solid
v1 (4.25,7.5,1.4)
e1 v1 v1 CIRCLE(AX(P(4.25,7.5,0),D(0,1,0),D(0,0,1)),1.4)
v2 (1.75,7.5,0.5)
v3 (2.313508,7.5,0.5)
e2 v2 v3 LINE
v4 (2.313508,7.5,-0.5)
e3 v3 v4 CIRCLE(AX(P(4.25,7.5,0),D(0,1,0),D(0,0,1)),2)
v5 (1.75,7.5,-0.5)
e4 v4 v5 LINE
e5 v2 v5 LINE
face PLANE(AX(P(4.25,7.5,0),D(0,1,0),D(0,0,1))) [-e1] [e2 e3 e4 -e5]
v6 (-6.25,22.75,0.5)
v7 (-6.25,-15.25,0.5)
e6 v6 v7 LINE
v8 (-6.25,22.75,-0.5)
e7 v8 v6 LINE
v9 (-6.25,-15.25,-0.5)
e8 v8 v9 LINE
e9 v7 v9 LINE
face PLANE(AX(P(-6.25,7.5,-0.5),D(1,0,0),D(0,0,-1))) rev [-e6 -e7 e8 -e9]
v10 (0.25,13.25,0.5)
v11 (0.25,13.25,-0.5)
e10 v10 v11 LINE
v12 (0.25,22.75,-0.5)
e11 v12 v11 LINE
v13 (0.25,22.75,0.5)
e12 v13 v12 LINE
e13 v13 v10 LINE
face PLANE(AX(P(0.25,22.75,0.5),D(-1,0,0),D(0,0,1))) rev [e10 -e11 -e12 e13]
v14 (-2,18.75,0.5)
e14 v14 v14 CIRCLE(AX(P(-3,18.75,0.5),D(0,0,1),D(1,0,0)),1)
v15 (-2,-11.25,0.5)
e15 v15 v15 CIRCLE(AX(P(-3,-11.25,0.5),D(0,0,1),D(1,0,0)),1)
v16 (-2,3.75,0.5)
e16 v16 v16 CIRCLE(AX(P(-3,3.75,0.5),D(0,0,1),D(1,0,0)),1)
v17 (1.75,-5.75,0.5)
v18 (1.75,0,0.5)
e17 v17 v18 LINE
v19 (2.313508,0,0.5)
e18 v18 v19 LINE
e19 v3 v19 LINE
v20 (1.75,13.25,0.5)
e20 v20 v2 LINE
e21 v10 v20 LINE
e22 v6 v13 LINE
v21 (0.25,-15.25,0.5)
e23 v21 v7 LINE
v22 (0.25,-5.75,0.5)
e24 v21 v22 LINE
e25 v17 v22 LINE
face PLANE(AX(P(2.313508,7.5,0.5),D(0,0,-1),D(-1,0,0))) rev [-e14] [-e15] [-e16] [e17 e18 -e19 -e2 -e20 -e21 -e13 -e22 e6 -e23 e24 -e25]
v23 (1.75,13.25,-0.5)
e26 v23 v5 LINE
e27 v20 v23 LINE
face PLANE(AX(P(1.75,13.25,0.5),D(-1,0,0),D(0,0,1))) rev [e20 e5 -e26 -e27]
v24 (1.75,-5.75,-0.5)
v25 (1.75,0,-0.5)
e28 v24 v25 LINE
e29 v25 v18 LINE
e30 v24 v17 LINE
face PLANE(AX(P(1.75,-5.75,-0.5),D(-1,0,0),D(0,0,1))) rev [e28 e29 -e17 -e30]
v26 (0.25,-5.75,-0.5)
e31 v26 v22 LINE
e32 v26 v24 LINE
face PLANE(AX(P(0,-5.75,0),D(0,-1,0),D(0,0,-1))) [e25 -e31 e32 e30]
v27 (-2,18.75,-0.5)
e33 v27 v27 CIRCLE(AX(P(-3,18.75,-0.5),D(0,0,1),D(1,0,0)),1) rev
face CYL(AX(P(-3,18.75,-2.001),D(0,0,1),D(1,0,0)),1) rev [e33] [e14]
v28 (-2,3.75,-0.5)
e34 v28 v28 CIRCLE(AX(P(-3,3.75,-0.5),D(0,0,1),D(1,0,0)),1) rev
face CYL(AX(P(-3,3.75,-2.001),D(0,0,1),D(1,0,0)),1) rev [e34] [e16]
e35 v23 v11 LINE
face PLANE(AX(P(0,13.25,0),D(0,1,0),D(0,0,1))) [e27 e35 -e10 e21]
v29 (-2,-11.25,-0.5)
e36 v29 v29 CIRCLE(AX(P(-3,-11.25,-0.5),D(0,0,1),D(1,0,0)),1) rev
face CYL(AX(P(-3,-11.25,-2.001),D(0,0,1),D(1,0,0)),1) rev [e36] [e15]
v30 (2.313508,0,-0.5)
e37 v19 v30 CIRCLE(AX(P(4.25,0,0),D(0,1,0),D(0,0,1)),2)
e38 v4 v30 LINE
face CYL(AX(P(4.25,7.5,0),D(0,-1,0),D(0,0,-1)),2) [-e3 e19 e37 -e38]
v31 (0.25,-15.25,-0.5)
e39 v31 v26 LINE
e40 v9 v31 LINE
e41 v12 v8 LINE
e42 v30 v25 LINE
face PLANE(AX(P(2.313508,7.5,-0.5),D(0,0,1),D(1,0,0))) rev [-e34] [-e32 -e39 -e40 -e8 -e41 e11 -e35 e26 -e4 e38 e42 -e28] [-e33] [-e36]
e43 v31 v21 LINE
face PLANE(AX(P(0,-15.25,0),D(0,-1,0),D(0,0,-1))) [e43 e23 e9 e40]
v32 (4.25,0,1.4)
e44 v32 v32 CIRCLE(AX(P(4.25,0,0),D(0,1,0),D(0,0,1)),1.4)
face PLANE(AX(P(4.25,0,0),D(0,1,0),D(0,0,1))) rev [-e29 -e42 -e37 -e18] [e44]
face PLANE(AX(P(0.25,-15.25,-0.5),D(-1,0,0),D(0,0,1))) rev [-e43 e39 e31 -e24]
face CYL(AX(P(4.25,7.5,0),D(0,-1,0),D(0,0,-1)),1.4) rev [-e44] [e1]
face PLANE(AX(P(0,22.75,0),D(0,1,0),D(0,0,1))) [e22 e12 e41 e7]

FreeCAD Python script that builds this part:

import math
import FreeCAD as App
import Part
import Sketcher
from FreeCAD import Vector

doc = App.newDocument("Part")
params = doc.addObject("Spreadsheet::Sheet", "Params")
for row, (alias, value) in enumerate([
    ("sketch1_radius", "2 mm"),
    ("sketch1_diameter", "2.8 mm"),
    ("sketch1_height", "1 mm"),
    ("pad1_length", "7.5 mm"),
    ("sketch2_width", "8 mm"),
    ("sketch2_height", "1 mm"),
    ("pad2_length", "5.75 mm"),
    ("sketch3_width", "8 mm"),
    ("sketch3_height", "1 mm"),
    ("pad3_length", "5.75 mm"),
    ("sketch4_height", "1 mm"),
    ("sketch4_width", "6.5 mm"),
    ("pad4_length", "9.5 mm"),
    ("sketch5_height", "1 mm"),
    ("sketch5_width", "6.5 mm"),
    ("pad5_length", "9.5 mm"),
    ("sketch6_diameter", "2 mm"),
    ("sketch7_diameter", "2 mm"),
    ("sketch8_diameter", "2 mm"),
], start=1):
    params.set(f"A{row}", alias)
    params.set(f"B{row}", "=" + value)
    params.setAlias(f"B{row}", alias)

body = doc.addObject("PartDesign::Body", "Body")

sketch1 = doc.addObject("Sketcher::SketchObject", "Sketch")
body.addObject(sketch1)
sketch1.AttachmentSupport = (doc.XZ_Plane, [""])
sketch1.MapMode = "FlatFace"
sketch1.addGeometry(Part.LineSegment(Vector(2.3, -0.5, 0), Vector(-6.2, -0.5, 0)), False)
sketch1.addGeometry(Part.LineSegment(Vector(-6.2, -0.5, 0), Vector(-6.2, 0.5, 0)), False)
sketch1.addGeometry(Part.LineSegment(Vector(-6.2, 0.5, 0), Vector(2.3, 0.5, 0)), False)
sketch1.addGeometry(Part.ArcOfCircle(Part.Circle(Vector(4.2, 0, 0), Vector(0, 0, 1), 2), math.radians(-166), math.radians(166)), False)
sketch1.addGeometry(Part.Circle(Vector(4.2, 0, 0), Vector(0, 0, 1), 1.4), False)
sketch1.addConstraint(Sketcher.Constraint("Coincident", 0, 2, 1, 1))
sketch1.addConstraint(Sketcher.Constraint("Coincident", 1, 2, 2, 1))
sketch1.addConstraint(Sketcher.Constraint("Coincident", 2, 2, 3, 2))
sketch1.addConstraint(Sketcher.Constraint("Coincident", 3, 1, 0, 1))
sketch1.addConstraint(Sketcher.Constraint("Horizontal", 0))
sketch1.addConstraint(Sketcher.Constraint("Vertical", 1))
sketch1.addConstraint(Sketcher.Constraint("Horizontal", 2))
sketch1.addConstraint(Sketcher.Constraint("Coincident", 4, 3, 3, 3))
sketch1.addConstraint(Sketcher.Constraint("Symmetric", 2, 2, 3, 1, -1))
sketch1.addConstraint(Sketcher.Constraint("Radius", 3, 2.0))
sketch1.addConstraint(Sketcher.Constraint("Diameter", 4, 2.8))
sketch1.addConstraint(Sketcher.Constraint("DistanceY", 1, 1, 1, 2, 1.0))
sketch1.addConstraint(Sketcher.Constraint("DistanceX", 0, 2, 3, 3, 10.5))
sketch1.addConstraint(Sketcher.Constraint("DistanceX", -1, 1, 3, 3, 4.25))
sketch1.setExpression("Constraints[9]", "Params.sketch1_radius")
sketch1.setExpression("Constraints[10]", "Params.sketch1_diameter")
sketch1.setExpression("Constraints[11]", "Params.sketch1_height")
pad1 = doc.addObject("PartDesign::Pad", "Pad")
body.addObject(pad1)
pad1.Profile = sketch1
pad1.setExpression("Length", "Params.pad1_length")
pad1.Reversed = True

sketch2 = doc.addObject("Sketcher::SketchObject", "Sketch001")
body.addObject(sketch2)
sketch2.AttachmentSupport = (doc.XZ_Plane, [""])
sketch2.MapMode = "FlatFace"
sketch2.AttachmentOffset = App.Placement(Vector(0, 0, -7.5), App.Rotation())
sketch2.addGeometry(Part.LineSegment(Vector(-6.2, -0.5, 0), Vector(-6.2, 0.5, 0)), False)
sketch2.addGeometry(Part.LineSegment(Vector(-6.2, 0.5, 0), Vector(1.8, 0.5, 0)), False)
sketch2.addGeometry(Part.LineSegment(Vector(1.8, 0.5, 0), Vector(1.8, -0.5, 0)), False)
sketch2.addGeometry(Part.LineSegment(Vector(1.8, -0.5, 0), Vector(-6.2, -0.5, 0)), False)
sketch2.addConstraint(Sketcher.Constraint("Coincident", 0, 2, 1, 1))
sketch2.addConstraint(Sketcher.Constraint("Coincident", 1, 2, 2, 1))
sketch2.addConstraint(Sketcher.Constraint("Coincident", 2, 2, 3, 1))
sketch2.addConstraint(Sketcher.Constraint("Coincident", 3, 2, 0, 1))
sketch2.addConstraint(Sketcher.Constraint("Vertical", 0))
sketch2.addConstraint(Sketcher.Constraint("Horizontal", 1))
sketch2.addConstraint(Sketcher.Constraint("Vertical", 2))
sketch2.addConstraint(Sketcher.Constraint("Horizontal", 3))
sketch2.addConstraint(Sketcher.Constraint("DistanceX", 1, 1, 1, 2, 8.0))
sketch2.addConstraint(Sketcher.Constraint("DistanceY", 0, 1, 0, 2, 1.0))
sketch2.addConstraint(Sketcher.Constraint("DistanceY", -1, 1, 0, 2, 0.5))
sketch2.addConstraint(Sketcher.Constraint("DistanceX", 0, 2, -1, 1, 6.25))
sketch2.setExpression("Constraints[8]", "Params.sketch2_width")
sketch2.setExpression("Constraints[9]", "Params.sketch2_height")
pad2 = doc.addObject("PartDesign::Pad", "Pad001")
body.addObject(pad2)
pad2.Profile = sketch2
pad2.setExpression("Length", "Params.pad2_length")
pad2.Reversed = True

sketch3 = doc.addObject("Sketcher::SketchObject", "Sketch002")
body.addObject(sketch3)
sketch3.AttachmentSupport = (doc.XZ_Plane, [""])
sketch3.MapMode = "FlatFace"
sketch3.addGeometry(Part.LineSegment(Vector(-6.2, 0.5, 0), Vector(-6.2, -0.5, 0)), False)
sketch3.addGeometry(Part.LineSegment(Vector(-6.2, -0.5, 0), Vector(1.8, -0.5, 0)), False)
sketch3.addGeometry(Part.LineSegment(Vector(1.8, -0.5, 0), Vector(1.8, 0.5, 0)), False)
sketch3.addGeometry(Part.LineSegment(Vector(1.8, 0.5, 0), Vector(-6.2, 0.5, 0)), False)
sketch3.addConstraint(Sketcher.Constraint("Coincident", 0, 2, 1, 1))
sketch3.addConstraint(Sketcher.Constraint("Coincident", 1, 2, 2, 1))
sketch3.addConstraint(Sketcher.Constraint("Coincident", 2, 2, 3, 1))
sketch3.addConstraint(Sketcher.Constraint("Coincident", 3, 2, 0, 1))
sketch3.addConstraint(Sketcher.Constraint("Vertical", 0))
sketch3.addConstraint(Sketcher.Constraint("Horizontal", 1))
sketch3.addConstraint(Sketcher.Constraint("Vertical", 2))
sketch3.addConstraint(Sketcher.Constraint("Horizontal", 3))
sketch3.addConstraint(Sketcher.Constraint("DistanceX", 1, 1, 1, 2, 8.0))
sketch3.addConstraint(Sketcher.Constraint("DistanceY", 0, 2, 0, 1, 1.0))
sketch3.addConstraint(Sketcher.Constraint("DistanceY", 0, 2, -1, 1, 0.5))
sketch3.addConstraint(Sketcher.Constraint("DistanceX", 0, 2, -1, 1, 6.25))
sketch3.setExpression("Constraints[8]", "Params.sketch3_width")
sketch3.setExpression("Constraints[9]", "Params.sketch3_height")
pad3 = doc.addObject("PartDesign::Pad", "Pad002")
body.addObject(pad3)
pad3.Profile = sketch3
pad3.setExpression("Length", "Params.pad3_length")

sketch4 = doc.addObject("Sketcher::SketchObject", "Sketch003")
body.addObject(sketch4)
sketch4.AttachmentSupport = (doc.XZ_Plane, [""])
sketch4.MapMode = "FlatFace"
sketch4.AttachmentOffset = App.Placement(Vector(0, 0, 5.75), App.Rotation())
sketch4.addGeometry(Part.LineSegment(Vector(-6.2, 0.5, 0), Vector(-6.2, -0.5, 0)), False)
sketch4.addGeometry(Part.LineSegment(Vector(-6.2, -0.5, 0), Vector(0.2, -0.5, 0)), False)
sketch4.addGeometry(Part.LineSegment(Vector(0.2, -0.5, 0), Vector(0.2, 0.5, 0)), False)
sketch4.addGeometry(Part.LineSegment(Vector(0.2, 0.5, 0), Vector(-6.2, 0.5, 0)), False)
sketch4.addConstraint(Sketcher.Constraint("Coincident", 0, 2, 1, 1))
sketch4.addConstraint(Sketcher.Constraint("Coincident", 1, 2, 2, 1))
sketch4.addConstraint(Sketcher.Constraint("Coincident", 2, 2, 3, 1))
sketch4.addConstraint(Sketcher.Constraint("Coincident", 3, 2, 0, 1))
sketch4.addConstraint(Sketcher.Constraint("Vertical", 0))
sketch4.addConstraint(Sketcher.Constraint("Horizontal", 1))
sketch4.addConstraint(Sketcher.Constraint("Vertical", 2))
sketch4.addConstraint(Sketcher.Constraint("Horizontal", 3))
sketch4.addConstraint(Sketcher.Constraint("DistanceY", 0, 2, 0, 1, 1.0))
sketch4.addConstraint(Sketcher.Constraint("DistanceX", 1, 1, 1, 2, 6.5))
sketch4.addConstraint(Sketcher.Constraint("DistanceY", 0, 2, -1, 1, 0.5))
sketch4.addConstraint(Sketcher.Constraint("DistanceX", 0, 2, -1, 1, 6.25))
sketch4.setExpression("Constraints[8]", "Params.sketch4_height")
sketch4.setExpression("Constraints[9]", "Params.sketch4_width")
pad4 = doc.addObject("PartDesign::Pad", "Pad003")
body.addObject(pad4)
pad4.Profile = sketch4
pad4.setExpression("Length", "Params.pad4_length")

sketch5 = doc.addObject("Sketcher::SketchObject", "Sketch004")
body.addObject(sketch5)
sketch5.AttachmentSupport = (doc.XZ_Plane, [""])
sketch5.MapMode = "FlatFace"
sketch5.AttachmentOffset = App.Placement(Vector(0, 0, -13.25), App.Rotation())
sketch5.addGeometry(Part.LineSegment(Vector(-6.2, -0.5, 0), Vector(-6.2, 0.5, 0)), False)
sketch5.addGeometry(Part.LineSegment(Vector(-6.2, 0.5, 0), Vector(0.2, 0.5, 0)), False)
sketch5.addGeometry(Part.LineSegment(Vector(0.2, 0.5, 0), Vector(0.2, -0.5, 0)), False)
sketch5.addGeometry(Part.LineSegment(Vector(0.2, -0.5, 0), Vector(-6.2, -0.5, 0)), False)
sketch5.addConstraint(Sketcher.Constraint("Coincident", 0, 2, 1, 1))
sketch5.addConstraint(Sketcher.Constraint("Coincident", 1, 2, 2, 1))
sketch5.addConstraint(Sketcher.Constraint("Coincident", 2, 2, 3, 1))
sketch5.addConstraint(Sketcher.Constraint("Coincident", 3, 2, 0, 1))
sketch5.addConstraint(Sketcher.Constraint("Vertical", 0))
sketch5.addConstraint(Sketcher.Constraint("Horizontal", 1))
sketch5.addConstraint(Sketcher.Constraint("Vertical", 2))
sketch5.addConstraint(Sketcher.Constraint("Horizontal", 3))
sketch5.addConstraint(Sketcher.Constraint("DistanceY", 0, 1, 0, 2, 1.0))
sketch5.addConstraint(Sketcher.Constraint("DistanceX", 1, 1, 1, 2, 6.5))
sketch5.addConstraint(Sketcher.Constraint("DistanceY", -1, 1, 0, 2, 0.5))
sketch5.addConstraint(Sketcher.Constraint("DistanceX", 0, 2, -1, 1, 6.25))
sketch5.setExpression("Constraints[8]", "Params.sketch5_height")
sketch5.setExpression("Constraints[9]", "Params.sketch5_width")
pad5 = doc.addObject("PartDesign::Pad", "Pad004")
body.addObject(pad5)
pad5.Profile = sketch5
pad5.setExpression("Length", "Params.pad5_length")
pad5.Reversed = True

sketch6 = doc.addObject("Sketcher::SketchObject", "Sketch005")
body.addObject(sketch6)
sketch6.AttachmentSupport = (doc.XY_Plane, [""])
sketch6.MapMode = "FlatFace"
sketch6.AttachmentOffset = App.Placement(Vector(0, 0, 0.5), App.Rotation())
sketch6.addGeometry(Part.Circle(Vector(-3, 18.8, 0), Vector(0, 0, 1), 1), False)
sketch6.addConstraint(Sketcher.Constraint("Diameter", 0, 2.0))
sketch6.addConstraint(Sketcher.Constraint("DistanceX", 0, 3, -1, 1, 3.0))
sketch6.addConstraint(Sketcher.Constraint("DistanceY", -1, 1, 0, 3, 18.75))
sketch6.setExpression("Constraints[0]", "Params.sketch6_diameter")
pocket1 = doc.addObject("PartDesign::Pocket", "Pocket")
body.addObject(pocket1)
pocket1.Profile = sketch6
pocket1.Type = "UpToFirst"

sketch7 = doc.addObject("Sketcher::SketchObject", "Sketch006")
body.addObject(sketch7)
sketch7.AttachmentSupport = (doc.XY_Plane, [""])
sketch7.MapMode = "FlatFace"
sketch7.AttachmentOffset = App.Placement(Vector(0, 0, 0.5), App.Rotation())
sketch7.addGeometry(Part.Circle(Vector(-3, 3.8, 0), Vector(0, 0, 1), 1), False)
sketch7.addConstraint(Sketcher.Constraint("Diameter", 0, 2.0))
sketch7.addConstraint(Sketcher.Constraint("DistanceX", 0, 3, -1, 1, 3.0))
sketch7.addConstraint(Sketcher.Constraint("DistanceY", -1, 1, 0, 3, 3.75))
sketch7.setExpression("Constraints[0]", "Params.sketch7_diameter")
pocket2 = doc.addObject("PartDesign::Pocket", "Pocket001")
body.addObject(pocket2)
pocket2.Profile = sketch7
pocket2.Type = "UpToFirst"

sketch8 = doc.addObject("Sketcher::SketchObject", "Sketch007")
body.addObject(sketch8)
sketch8.AttachmentSupport = (doc.XY_Plane, [""])
sketch8.MapMode = "FlatFace"
sketch8.AttachmentOffset = App.Placement(Vector(0, 0, 0.5), App.Rotation())
sketch8.addGeometry(Part.Circle(Vector(-3, -11.2, 0), Vector(0, 0, 1), 1), False)
sketch8.addConstraint(Sketcher.Constraint("Diameter", 0, 2.0))
sketch8.addConstraint(Sketcher.Constraint("DistanceX", 0, 3, -1, 1, 3.0))
sketch8.addConstraint(Sketcher.Constraint("DistanceY", 0, 3, -1, 1, 11.25))
sketch8.setExpression("Constraints[0]", "Params.sketch8_diameter")
pocket3 = doc.addObject("PartDesign::Pocket", "Pocket002")
body.addObject(pocket3)
pocket3.Profile = sketch8
pocket3.Type = "UpToFirst"

doc.recompute()
